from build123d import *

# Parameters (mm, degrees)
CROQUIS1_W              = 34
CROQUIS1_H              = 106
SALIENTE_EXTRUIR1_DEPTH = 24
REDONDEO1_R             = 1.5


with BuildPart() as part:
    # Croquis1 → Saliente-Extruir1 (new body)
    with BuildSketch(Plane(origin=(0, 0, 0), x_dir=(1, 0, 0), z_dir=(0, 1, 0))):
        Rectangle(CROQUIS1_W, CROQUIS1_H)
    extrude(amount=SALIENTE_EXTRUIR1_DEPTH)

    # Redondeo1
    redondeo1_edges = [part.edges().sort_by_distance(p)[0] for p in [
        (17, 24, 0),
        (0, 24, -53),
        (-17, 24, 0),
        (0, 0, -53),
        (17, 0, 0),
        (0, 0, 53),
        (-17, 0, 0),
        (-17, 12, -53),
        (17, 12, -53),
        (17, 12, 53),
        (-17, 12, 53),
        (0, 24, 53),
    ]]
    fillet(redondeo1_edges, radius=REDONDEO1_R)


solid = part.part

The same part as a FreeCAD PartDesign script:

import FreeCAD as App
import Part
import Sketcher

V = App.Vector


def add_polygon(sketch, points):
    """Adds a closed chain of lines whose ends are joined by coincident constraints."""
    first, n = sketch.GeometryCount, len(points)
    for a, b in zip(points, points[1:] + points[:1]):
        sketch.addGeometry(Part.LineSegment(App.Vector(*a, 0), App.Vector(*b, 0)), False)
    for i in range(n):
        sketch.addConstraint(Sketcher.Constraint("Coincident", first + i, 2, first + (i + 1) % n, 1))

doc = App.newDocument("Part")
body = doc.addObject("PartDesign::Body", "Body")

# Sketch on XZ plane
sketch1 = body.newObject("Sketcher::SketchObject", "Sketch")
sketch1.AttachmentSupport = (doc.getObject("XZ_Plane"), [""])
sketch1.MapMode = "FlatFace"
add_polygon(sketch1, [(-17, -53), (-17, 53), (17, 53), (17, -53)])  # lines 0-3
sketch1.addConstraint([
    Sketcher.Constraint("Vertical", 0),
    Sketcher.Constraint("Horizontal", 1),
    Sketcher.Constraint("Vertical", 2),
    Sketcher.Constraint("Horizontal", 3),
    Sketcher.Constraint("Symmetric", 0, 2, 2, 2, -1, 1),
    Sketcher.Constraint("DistanceX", 1, 1, 1, 2, 34.0),
    Sketcher.Constraint("DistanceY", 0, 1, 0, 2, 106.0),
])
pad1 = body.newObject("PartDesign::Pad", "Pad")
pad1.Profile = sketch1
pad1.Length = 24
pad1.Reversed = True
doc.recompute()

fillet = body.newObject("PartDesign::Fillet", "Fillet")
fillet.Base = (pad1, ["Edge1"])
fillet.UseAllEdges = True
fillet.Radius = 1.5

doc.recompute()
